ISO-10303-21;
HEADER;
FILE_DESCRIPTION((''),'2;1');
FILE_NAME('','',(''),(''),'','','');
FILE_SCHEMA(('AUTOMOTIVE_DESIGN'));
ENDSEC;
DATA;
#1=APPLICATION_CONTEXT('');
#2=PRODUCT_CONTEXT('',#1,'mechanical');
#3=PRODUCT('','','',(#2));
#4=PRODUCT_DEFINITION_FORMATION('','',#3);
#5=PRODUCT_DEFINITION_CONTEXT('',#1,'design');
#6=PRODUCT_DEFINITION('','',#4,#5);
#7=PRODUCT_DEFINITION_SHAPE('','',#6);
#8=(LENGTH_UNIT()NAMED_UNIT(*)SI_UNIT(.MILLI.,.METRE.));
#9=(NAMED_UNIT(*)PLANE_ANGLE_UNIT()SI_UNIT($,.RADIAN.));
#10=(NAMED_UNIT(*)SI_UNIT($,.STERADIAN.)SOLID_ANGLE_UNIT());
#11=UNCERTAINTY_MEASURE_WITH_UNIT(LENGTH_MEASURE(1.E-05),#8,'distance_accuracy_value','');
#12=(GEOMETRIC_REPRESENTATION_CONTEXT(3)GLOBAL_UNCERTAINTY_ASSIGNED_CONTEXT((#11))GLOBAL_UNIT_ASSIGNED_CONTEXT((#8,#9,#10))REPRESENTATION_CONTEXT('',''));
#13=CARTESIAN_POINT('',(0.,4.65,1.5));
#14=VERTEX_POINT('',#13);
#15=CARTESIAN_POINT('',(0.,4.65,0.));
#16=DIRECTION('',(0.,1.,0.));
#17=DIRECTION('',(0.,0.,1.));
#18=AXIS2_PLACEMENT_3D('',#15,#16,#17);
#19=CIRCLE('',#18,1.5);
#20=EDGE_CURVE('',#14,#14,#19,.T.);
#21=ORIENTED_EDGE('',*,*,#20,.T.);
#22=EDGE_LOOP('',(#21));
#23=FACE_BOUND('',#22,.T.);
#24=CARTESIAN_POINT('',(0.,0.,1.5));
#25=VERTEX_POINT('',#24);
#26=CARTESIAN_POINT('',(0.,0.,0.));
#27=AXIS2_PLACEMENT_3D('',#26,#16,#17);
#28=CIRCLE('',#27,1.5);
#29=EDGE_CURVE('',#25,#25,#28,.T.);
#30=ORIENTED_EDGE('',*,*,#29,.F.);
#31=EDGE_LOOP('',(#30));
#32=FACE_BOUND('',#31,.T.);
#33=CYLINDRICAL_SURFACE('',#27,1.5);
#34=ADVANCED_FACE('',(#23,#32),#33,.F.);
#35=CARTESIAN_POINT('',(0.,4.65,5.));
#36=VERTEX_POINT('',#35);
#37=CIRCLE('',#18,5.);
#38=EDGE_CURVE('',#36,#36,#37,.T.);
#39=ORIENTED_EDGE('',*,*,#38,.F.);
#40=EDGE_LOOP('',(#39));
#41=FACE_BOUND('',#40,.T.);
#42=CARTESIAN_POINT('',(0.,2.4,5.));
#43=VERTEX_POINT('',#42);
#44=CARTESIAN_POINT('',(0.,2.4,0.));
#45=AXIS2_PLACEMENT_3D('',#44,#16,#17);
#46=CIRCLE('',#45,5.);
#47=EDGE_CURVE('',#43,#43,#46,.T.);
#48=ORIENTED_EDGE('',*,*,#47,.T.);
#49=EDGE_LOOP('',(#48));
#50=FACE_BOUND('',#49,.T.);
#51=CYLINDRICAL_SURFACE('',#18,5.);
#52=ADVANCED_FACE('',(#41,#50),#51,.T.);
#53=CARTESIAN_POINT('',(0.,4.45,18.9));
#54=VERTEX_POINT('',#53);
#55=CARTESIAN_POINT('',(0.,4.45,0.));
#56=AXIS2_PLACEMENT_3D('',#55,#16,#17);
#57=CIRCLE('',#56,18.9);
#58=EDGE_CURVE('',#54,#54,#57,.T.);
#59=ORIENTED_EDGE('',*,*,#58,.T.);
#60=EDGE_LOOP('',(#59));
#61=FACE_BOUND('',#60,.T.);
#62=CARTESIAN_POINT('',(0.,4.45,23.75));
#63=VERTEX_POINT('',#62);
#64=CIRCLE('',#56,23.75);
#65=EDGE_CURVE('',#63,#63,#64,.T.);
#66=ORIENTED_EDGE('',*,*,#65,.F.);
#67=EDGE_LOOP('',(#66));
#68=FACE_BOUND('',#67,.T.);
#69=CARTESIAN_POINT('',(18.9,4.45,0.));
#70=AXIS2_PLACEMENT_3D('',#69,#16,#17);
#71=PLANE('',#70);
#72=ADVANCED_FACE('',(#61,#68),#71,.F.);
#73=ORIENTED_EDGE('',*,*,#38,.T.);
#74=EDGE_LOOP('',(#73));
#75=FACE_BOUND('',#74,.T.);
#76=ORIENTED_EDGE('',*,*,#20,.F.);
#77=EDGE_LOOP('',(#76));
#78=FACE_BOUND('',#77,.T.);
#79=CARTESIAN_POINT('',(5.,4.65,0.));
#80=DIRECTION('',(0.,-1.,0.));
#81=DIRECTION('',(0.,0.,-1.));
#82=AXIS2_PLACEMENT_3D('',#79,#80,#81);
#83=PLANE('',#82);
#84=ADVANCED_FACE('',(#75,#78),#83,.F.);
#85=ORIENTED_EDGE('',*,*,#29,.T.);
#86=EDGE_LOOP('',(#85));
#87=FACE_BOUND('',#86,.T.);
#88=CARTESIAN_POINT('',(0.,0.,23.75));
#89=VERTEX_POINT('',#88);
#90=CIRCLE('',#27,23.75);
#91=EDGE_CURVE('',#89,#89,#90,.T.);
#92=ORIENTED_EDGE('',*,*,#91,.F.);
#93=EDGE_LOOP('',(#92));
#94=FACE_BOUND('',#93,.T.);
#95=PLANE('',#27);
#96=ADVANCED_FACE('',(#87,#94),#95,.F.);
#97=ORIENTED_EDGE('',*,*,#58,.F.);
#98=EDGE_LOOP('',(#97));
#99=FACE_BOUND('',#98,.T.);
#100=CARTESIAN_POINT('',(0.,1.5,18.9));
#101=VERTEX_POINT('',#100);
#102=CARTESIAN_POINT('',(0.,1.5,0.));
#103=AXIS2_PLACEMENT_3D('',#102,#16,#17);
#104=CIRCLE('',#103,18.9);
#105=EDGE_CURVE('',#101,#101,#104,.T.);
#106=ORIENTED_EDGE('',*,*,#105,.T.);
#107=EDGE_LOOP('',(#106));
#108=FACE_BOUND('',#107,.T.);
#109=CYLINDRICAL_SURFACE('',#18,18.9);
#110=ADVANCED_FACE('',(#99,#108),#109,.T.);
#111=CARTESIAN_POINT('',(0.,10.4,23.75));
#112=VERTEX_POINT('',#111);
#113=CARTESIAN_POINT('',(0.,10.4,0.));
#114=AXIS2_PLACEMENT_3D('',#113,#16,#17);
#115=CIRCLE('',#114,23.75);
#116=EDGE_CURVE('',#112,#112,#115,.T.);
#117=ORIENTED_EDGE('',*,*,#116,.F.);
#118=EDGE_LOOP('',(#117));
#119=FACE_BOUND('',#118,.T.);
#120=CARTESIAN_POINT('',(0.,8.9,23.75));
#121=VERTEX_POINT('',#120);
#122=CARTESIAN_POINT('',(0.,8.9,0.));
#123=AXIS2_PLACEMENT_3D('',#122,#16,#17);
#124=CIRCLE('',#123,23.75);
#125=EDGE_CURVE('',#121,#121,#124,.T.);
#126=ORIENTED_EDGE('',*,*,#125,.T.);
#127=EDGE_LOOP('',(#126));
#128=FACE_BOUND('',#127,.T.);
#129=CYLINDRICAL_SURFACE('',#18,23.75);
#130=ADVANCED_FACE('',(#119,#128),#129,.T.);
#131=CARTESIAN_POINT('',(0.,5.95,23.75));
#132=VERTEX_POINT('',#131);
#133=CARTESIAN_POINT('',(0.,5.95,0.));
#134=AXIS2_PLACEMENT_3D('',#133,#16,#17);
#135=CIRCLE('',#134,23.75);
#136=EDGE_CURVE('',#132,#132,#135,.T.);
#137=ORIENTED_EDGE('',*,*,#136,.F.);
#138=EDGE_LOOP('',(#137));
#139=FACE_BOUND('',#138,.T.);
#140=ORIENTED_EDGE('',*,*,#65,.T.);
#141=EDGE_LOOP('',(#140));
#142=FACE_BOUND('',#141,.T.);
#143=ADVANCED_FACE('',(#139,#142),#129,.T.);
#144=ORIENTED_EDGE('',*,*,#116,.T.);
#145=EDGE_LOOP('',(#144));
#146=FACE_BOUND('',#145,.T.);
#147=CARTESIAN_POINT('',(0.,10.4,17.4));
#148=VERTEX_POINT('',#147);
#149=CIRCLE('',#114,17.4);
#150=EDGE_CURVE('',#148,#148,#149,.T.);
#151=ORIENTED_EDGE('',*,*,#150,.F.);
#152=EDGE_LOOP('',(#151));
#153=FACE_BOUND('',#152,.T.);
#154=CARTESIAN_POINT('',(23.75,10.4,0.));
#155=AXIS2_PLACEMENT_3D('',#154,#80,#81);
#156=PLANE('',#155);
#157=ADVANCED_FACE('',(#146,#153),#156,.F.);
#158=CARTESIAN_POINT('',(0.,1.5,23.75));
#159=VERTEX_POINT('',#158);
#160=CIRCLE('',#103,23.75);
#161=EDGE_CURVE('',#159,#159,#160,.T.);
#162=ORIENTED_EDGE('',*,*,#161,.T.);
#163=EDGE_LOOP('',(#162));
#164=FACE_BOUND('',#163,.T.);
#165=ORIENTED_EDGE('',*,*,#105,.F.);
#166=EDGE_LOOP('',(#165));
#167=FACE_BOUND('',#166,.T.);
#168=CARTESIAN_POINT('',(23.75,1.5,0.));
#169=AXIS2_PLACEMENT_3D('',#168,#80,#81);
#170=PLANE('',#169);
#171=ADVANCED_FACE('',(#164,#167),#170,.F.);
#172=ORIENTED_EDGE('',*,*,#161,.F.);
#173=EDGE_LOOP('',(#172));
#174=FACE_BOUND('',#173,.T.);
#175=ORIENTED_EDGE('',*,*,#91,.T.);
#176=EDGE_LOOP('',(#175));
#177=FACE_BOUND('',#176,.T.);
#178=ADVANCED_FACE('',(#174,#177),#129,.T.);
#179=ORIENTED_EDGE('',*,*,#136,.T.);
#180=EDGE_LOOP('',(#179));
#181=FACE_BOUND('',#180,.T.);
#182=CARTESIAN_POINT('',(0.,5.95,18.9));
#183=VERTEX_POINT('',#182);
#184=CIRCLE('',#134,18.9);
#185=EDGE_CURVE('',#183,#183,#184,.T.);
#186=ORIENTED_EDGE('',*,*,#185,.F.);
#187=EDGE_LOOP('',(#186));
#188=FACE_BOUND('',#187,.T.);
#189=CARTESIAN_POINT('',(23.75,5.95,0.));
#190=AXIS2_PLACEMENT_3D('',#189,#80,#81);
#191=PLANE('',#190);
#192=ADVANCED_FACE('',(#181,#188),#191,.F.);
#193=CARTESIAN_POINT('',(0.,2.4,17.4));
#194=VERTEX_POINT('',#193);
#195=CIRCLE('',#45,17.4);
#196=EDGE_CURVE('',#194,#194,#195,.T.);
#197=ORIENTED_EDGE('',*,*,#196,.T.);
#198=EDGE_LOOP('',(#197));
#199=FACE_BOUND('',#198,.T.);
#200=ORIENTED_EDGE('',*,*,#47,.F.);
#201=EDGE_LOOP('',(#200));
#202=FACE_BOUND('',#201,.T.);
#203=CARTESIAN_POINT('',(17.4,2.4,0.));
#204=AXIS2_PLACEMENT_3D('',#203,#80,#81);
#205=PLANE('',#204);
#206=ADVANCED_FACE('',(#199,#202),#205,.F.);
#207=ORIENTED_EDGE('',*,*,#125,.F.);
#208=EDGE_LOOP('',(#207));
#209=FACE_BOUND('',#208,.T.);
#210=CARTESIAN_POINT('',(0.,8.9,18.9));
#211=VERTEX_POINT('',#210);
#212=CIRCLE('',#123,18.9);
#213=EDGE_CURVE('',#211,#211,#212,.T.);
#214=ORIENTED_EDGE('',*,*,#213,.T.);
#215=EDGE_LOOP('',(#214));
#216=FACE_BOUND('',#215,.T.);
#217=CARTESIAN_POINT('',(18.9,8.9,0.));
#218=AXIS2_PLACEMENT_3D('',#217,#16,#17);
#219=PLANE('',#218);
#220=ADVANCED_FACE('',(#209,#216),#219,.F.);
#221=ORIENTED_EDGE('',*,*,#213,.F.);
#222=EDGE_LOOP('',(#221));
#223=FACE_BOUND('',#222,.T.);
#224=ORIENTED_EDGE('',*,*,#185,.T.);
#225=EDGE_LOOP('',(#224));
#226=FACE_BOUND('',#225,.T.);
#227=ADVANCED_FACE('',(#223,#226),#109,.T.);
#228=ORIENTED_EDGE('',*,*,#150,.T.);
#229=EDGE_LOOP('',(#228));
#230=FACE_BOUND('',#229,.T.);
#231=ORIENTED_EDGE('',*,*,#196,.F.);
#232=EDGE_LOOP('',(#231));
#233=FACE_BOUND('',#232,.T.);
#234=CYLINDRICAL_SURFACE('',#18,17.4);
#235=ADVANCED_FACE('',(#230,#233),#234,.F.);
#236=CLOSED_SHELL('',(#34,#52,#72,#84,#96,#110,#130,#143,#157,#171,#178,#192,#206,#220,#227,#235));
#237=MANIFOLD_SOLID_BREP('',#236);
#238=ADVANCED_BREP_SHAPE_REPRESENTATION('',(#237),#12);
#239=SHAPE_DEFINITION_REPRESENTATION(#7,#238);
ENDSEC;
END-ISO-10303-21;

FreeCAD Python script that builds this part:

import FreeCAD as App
import Part
import Sketcher
Q = App.Units.Quantity


def add_polygon(sketch, points):
    """Adds a closed chain of lines whose ends are joined by coincident constraints."""
    first, n = sketch.GeometryCount, len(points)
    for a, b in zip(points, points[1:] + points[:1]):
        sketch.addGeometry(Part.LineSegment(App.Vector(*a, 0), App.Vector(*b, 0)), False)
    for i in range(n):
        sketch.addConstraint(Sketcher.Constraint("Coincident", first + i, 2, first + (i + 1) % n, 1))

doc = App.newDocument("Part")
body = doc.addObject("PartDesign::Body", "Body")

# Sketch on XY plane
sketch1 = body.newObject("Sketcher::SketchObject", "Sketch")
sketch1.AttachmentSupport = (doc.getObject("XY_Plane"), [""])
sketch1.MapMode = "FlatFace"
add_polygon(sketch1, [(0, 0), (23.8, 0), (23.8, 1.5), (18.9, 1.5), (18.9, 4.5), (23.8, 4.5), (23.8, 6), (18.9, 6), (18.9, 8.9), (23.8, 8.9), (23.8, 10.4), (17.4, 10.4), (17.4, 2.4), (5, 2.4), (5, 4.7), (0, 4.7)])  # lines 0-15
sketch1.addConstraint([
    Sketcher.Constraint("Horizontal", 0),
    Sketcher.Constraint("Vertical", 1),
    Sketcher.Constraint("Horizontal", 2),
    Sketcher.Constraint("Vertical", 3),
    Sketcher.Constraint("Horizontal", 4),
    Sketcher.Constraint("Vertical", 5),
    Sketcher.Constraint("Horizontal", 6),
    Sketcher.Constraint("Vertical", 7),
    Sketcher.Constraint("Horizontal", 8),
    Sketcher.Constraint("Vertical", 9),
    Sketcher.Constraint("Horizontal", 10),
    Sketcher.Constraint("Vertical", 11),
    Sketcher.Constraint("Horizontal", 12),
    Sketcher.Constraint("Vertical", 13),
    Sketcher.Constraint("Horizontal", 14),
    Sketcher.Constraint("Vertical", 15),
    Sketcher.Constraint("Coincident", 15, 2, -1, 1),
    Sketcher.Constraint("Vertical", 1, 2, 4, 2),
    Sketcher.Constraint("Vertical", 3, 2, 6, 2),
    Sketcher.Constraint("Vertical", 5, 2, 8, 2),
    Sketcher.Constraint("Equal", 1, 5),
    Sketcher.Constraint("Equal", 3, 7),
    Sketcher.Constraint("Equal", 5, 9),
    Sketcher.Constraint("DistanceX", 14, 2, 14, 1, Q("5 mm")),
    Sketcher.Constraint("DistanceY", 11, 2, 11, 1, Q("8 mm")),
    Sketcher.Constraint("DistanceX", 12, 2, 12, 1, Q("12.4 mm")),
    Sketcher.Constraint("DistanceY", 1, 1, 1, 2, Q("1.5 mm")),
    Sketcher.Constraint("DistanceX", 0, 1, 0, 2, Q("23.75 mm")),
    Sketcher.Constraint("DistanceX", 2, 2, 2, 1, Q("4.85 mm")),
    Sketcher.Constraint("DistanceY", 3, 1, 3, 2, Q("2.95 mm")),
    Sketcher.Constraint("DistanceY", 13, 1, 13, 2, Q("2.25 mm")),
])
revolution = body.newObject("PartDesign::Revolution", "Revolution")
revolution.Profile = sketch1
revolution.ReferenceAxis = (sketch1, ["V_Axis"])
revolution.Angle = 360

# Sketch on XZ plane
sketch2 = body.newObject("Sketcher::SketchObject", "Sketch001")
sketch2.AttachmentSupport = (doc.getObject("XZ_Plane"), [""])
sketch2.MapMode = "FlatFace"
sketch2.AttachmentOffset = App.Placement(App.Vector(0, 0, -4.65), App.Rotation())
sketch2.addGeometry(Part.Circle(App.Vector(0, 0, 0), App.Vector(0, 0, 1), 1.5), False)
sketch2.addConstraint([
    Sketcher.Constraint("Coincident", 0, 3, -1, 1),
    Sketcher.Constraint("Diameter", 0, Q("3 mm")),
])
pocket1 = body.newObject("PartDesign::Pocket", "Pocket")
pocket1.Profile = sketch2
pocket1.Type = "ThroughAll"
pocket1.Reversed = True

doc.recompute()
